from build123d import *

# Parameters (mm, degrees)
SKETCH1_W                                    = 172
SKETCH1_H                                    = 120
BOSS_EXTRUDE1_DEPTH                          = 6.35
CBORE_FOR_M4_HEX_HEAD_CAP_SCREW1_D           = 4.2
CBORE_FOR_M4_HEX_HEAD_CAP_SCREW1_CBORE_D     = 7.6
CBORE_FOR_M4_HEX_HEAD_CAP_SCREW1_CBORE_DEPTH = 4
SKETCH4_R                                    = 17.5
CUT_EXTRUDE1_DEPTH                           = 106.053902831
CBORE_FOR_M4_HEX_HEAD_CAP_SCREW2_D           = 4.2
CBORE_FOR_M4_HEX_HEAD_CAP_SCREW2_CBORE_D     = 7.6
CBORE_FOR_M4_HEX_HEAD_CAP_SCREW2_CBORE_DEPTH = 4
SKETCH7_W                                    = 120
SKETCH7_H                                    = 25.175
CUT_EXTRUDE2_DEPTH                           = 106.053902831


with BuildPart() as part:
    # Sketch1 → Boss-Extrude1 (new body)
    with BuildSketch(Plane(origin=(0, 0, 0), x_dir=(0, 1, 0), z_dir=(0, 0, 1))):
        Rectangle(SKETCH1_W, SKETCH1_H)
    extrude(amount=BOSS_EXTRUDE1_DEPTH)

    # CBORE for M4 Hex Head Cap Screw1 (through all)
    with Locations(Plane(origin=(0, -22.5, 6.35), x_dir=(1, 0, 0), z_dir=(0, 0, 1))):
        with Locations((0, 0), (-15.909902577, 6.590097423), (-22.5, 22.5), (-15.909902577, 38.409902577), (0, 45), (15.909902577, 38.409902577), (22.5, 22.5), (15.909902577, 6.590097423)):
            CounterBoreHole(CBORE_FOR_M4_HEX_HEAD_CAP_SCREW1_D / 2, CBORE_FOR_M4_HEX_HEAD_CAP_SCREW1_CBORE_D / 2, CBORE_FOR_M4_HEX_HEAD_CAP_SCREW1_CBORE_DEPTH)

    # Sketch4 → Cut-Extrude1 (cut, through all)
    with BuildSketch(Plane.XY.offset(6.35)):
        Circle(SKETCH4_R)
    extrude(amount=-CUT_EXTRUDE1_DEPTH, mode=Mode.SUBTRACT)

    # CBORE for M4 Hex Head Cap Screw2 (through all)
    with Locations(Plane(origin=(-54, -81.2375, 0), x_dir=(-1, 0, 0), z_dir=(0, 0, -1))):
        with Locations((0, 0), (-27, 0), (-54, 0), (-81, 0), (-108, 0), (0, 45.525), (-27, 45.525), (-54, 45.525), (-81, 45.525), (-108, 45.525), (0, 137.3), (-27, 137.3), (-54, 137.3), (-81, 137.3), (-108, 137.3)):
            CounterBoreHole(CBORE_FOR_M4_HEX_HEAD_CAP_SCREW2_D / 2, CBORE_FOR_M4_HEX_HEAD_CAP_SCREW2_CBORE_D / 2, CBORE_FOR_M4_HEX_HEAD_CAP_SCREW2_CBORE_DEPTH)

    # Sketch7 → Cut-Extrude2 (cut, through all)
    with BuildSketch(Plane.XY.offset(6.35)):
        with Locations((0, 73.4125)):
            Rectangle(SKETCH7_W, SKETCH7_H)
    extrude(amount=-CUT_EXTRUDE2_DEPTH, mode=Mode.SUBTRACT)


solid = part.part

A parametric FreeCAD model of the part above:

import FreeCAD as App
import Part
import Sketcher
Q = App.Units.Quantity

doc = App.newDocument("Part")
body = doc.addObject("PartDesign::Body", "Body")

sketch1 = body.newObject("Sketcher::SketchObject", "Sketch")
sketch1.AttachmentSupport = (doc.getObject("XY_Plane"), [""])
sketch1.MapMode = "FlatFace"
sketch1.addGeometry(Part.LineSegment(App.Vector(-60, -86, 0), App.Vector(60, -86, 0)), False)
sketch1.addGeometry(Part.LineSegment(App.Vector(60, -86, 0), App.Vector(60, 86, 0)), False)
sketch1.addGeometry(Part.LineSegment(App.Vector(60, 86, 0), App.Vector(-60, 86, 0)), False)
sketch1.addGeometry(Part.LineSegment(App.Vector(-60, 86, 0), App.Vector(-60, -86, 0)), False)
sketch1.addConstraint(Sketcher.Constraint("Coincident", 0, 2, 1, 1))
sketch1.addConstraint(Sketcher.Constraint("Coincident", 1, 2, 2, 1))
sketch1.addConstraint(Sketcher.Constraint("Coincident", 2, 2, 3, 1))
sketch1.addConstraint(Sketcher.Constraint("Coincident", 3, 2, 0, 1))
sketch1.addConstraint(Sketcher.Constraint("Horizontal", 0))
sketch1.addConstraint(Sketcher.Constraint("Vertical", 1))
sketch1.addConstraint(Sketcher.Constraint("Horizontal", 2))
sketch1.addConstraint(Sketcher.Constraint("Vertical", 3))
sketch1.addConstraint(Sketcher.Constraint("Symmetric", 0, 2, 2, 2, -1, 1))
sketch1.addConstraint(Sketcher.Constraint("DistanceX", 0, 1, 0, 2, Q("120 mm")))
sketch1.addConstraint(Sketcher.Constraint("DistanceY", 1, 1, 1, 2, Q("172 mm")))
pad1 = body.newObject("PartDesign::Pad", "Pad")
pad1.Profile = sketch1
pad1.Length = 6.35

sketch2 = body.newObject("Sketcher::SketchObject", "Sketch001")
sketch2.AttachmentSupport = (doc.getObject("XY_Plane"), [""])
sketch2.MapMode = "FlatFace"
sketch2.AttachmentOffset = App.Placement(App.Vector(0, 0, 6.35), App.Rotation())
sketch2.addGeometry(Part.Circle(App.Vector(0, -22.5, 0), App.Vector(0, 0, 1), 2.1), False)
sketch2.addGeometry(Part.Circle(App.Vector(-15.9, -15.9, 0), App.Vector(0, 0, 1), 2.1), False)
sketch2.addGeometry(Part.Circle(App.Vector(-22.5, 0, 0), App.Vector(0, 0, 1), 2.1), False)
sketch2.addGeometry(Part.Circle(App.Vector(-15.9, 15.9, 0), App.Vector(0, 0, 1), 2.1), False)
sketch2.addGeometry(Part.Circle(App.Vector(0, 22.5, 0), App.Vector(0, 0, 1), 2.1), False)
sketch2.addGeometry(Part.Circle(App.Vector(15.9, 15.9, 0), App.Vector(0, 0, 1), 2.1), False)
sketch2.addGeometry(Part.Circle(App.Vector(22.5, 0, 0), App.Vector(0, 0, 1), 2.1), False)
sketch2.addGeometry(Part.Circle(App.Vector(15.9, -15.9, 0), App.Vector(0, 0, 1), 2.1), False)
sketch2.addConstraint(Sketcher.Constraint("Equal", 0, 1))
sketch2.addConstraint(Sketcher.Constraint("Equal", 1, 2))
sketch2.addConstraint(Sketcher.Constraint("Equal", 2, 3))
sketch2.addConstraint(Sketcher.Constraint("Equal", 3, 4))
sketch2.addConstraint(Sketcher.Constraint("Equal", 4, 5))
sketch2.addConstraint(Sketcher.Constraint("Equal", 5, 6))
sketch2.addConstraint(Sketcher.Constraint("Equal", 6, 7))
sketch2.addConstraint(Sketcher.Constraint("Symmetric", 0, 3, 4, 3, -1, 1))
sketch2.addConstraint(Sketcher.Constraint("Symmetric", 1, 3, 5, 3, -1, 1))
sketch2.addConstraint(Sketcher.Constraint("Symmetric", 2, 3, 6, 3, -1, 1))
sketch2.addConstraint(Sketcher.Constraint("Symmetric", 3, 3, 7, 3, -1, 1))
sketch2.addConstraint(Sketcher.Constraint("Symmetric", 3, 3, 5, 3, -2))
sketch2.addConstraint(Sketcher.Constraint("PointOnObject", 0, 3, -2))
sketch2.addConstraint(Sketcher.Constraint("PointOnObject", 2, 3, -1))
sketch2.addConstraint(Sketcher.Constraint("Diameter", 0, Q("4.2 mm")))
sketch2.addConstraint(Sketcher.Constraint("DistanceY", 0, 3, 4, 3, Q("45 mm")))
sketch2.addConstraint(Sketcher.Constraint("DistanceX", 2, 3, -1, 1, Q("22.5 mm")))
sketch2.addConstraint(Sketcher.Constraint("DistanceX", 1, 3, -1, 1, Q("15.909903 mm")))
sketch2.addConstraint(Sketcher.Constraint("DistanceY", 1, 3, -1, 1, Q("15.909903 mm")))
doc.recompute()
hole = body.newObject("PartDesign::Hole", "Hole")
hole.Profile = sketch2
hole.ThreadType = "None"
hole.Diameter = 4.2
hole.DepthType = "ThroughAll"
hole.HoleCutType = "Counterbore"
hole.HoleCutDiameter = 7.6
hole.HoleCutDepth = 4

sketch3 = body.newObject("Sketcher::SketchObject", "Sketch002")
sketch3.AttachmentSupport = (doc.getObject("XY_Plane"), [""])
sketch3.MapMode = "FlatFace"
sketch3.AttachmentOffset = App.Placement(App.Vector(0, 0, 6.35), App.Rotation())
sketch3.addGeometry(Part.Circle(App.Vector(0, 0, 0), App.Vector(0, 0, 1), 18), False)
sketch3.addConstraint(Sketcher.Constraint("Coincident", 0, 3, -1, 1))
sketch3.addConstraint(Sketcher.Constraint("Diameter", 0, Q("35 mm")))
pocket1 = body.newObject("PartDesign::Pocket", "Pocket")
pocket1.Profile = sketch3
pocket1.Type = "ThroughAll"

sketch4 = body.newObject("Sketcher::SketchObject", "Sketch003")
sketch4.AttachmentSupport = (doc.getObject("XY_Plane"), [""])
sketch4.MapMode = "FlatFace"
sketch4.addGeometry(Part.Circle(App.Vector(-54, -81.2, 0), App.Vector(0, 0, 1), 2.1), False)
sketch4.addGeometry(Part.Circle(App.Vector(-27, -81.2, 0), App.Vector(0, 0, 1), 2.1), False)
sketch4.addGeometry(Part.Circle(App.Vector(0, -81.2, 0), App.Vector(0, 0, 1), 2.1), False)
sketch4.addGeometry(Part.Circle(App.Vector(27, -81.2, 0), App.Vector(0, 0, 1), 2.1), False)
sketch4.addGeometry(Part.Circle(App.Vector(54, -81.2, 0), App.Vector(0, 0, 1), 2.1), False)
sketch4.addGeometry(Part.Circle(App.Vector(-54, -35.7, 0), App.Vector(0, 0, 1), 2.1), False)
sketch4.addGeometry(Part.Circle(App.Vector(-27, -35.7, 0), App.Vector(0, 0, 1), 2.1), False)
sketch4.addGeometry(Part.Circle(App.Vector(0, -35.7, 0), App.Vector(0, 0, 1), 2.1), False)
sketch4.addGeometry(Part.Circle(App.Vector(27, -35.7, 0), App.Vector(0, 0, 1), 2.1), False)
sketch4.addGeometry(Part.Circle(App.Vector(54, -35.7, 0), App.Vector(0, 0, 1), 2.1), False)
sketch4.addGeometry(Part.Circle(App.Vector(-54, 56.1, 0), App.Vector(0, 0, 1), 2.1), False)
sketch4.addGeometry(Part.Circle(App.Vector(-27, 56.1, 0), App.Vector(0, 0, 1), 2.1), False)
sketch4.addGeometry(Part.Circle(App.Vector(0, 56.1, 0), App.Vector(0, 0, 1), 2.1), False)
sketch4.addGeometry(Part.Circle(App.Vector(27, 56.1, 0), App.Vector(0, 0, 1), 2.1), False)
sketch4.addGeometry(Part.Circle(App.Vector(54, 56.1, 0), App.Vector(0, 0, 1), 2.1), False)
sketch4.addConstraint(Sketcher.Constraint("Equal", 0, 1))
sketch4.addConstraint(Sketcher.Constraint("Equal", 1, 2))
sketch4.addConstraint(Sketcher.Constraint("Equal", 2, 3))
sketch4.addConstraint(Sketcher.Constraint("Equal", 3, 4))
sketch4.addConstraint(Sketcher.Constraint("Equal", 4, 5))
sketch4.addConstraint(Sketcher.Constraint("Equal", 5, 6))
sketch4.addConstraint(Sketcher.Constraint("Equal", 6, 7))
sketch4.addConstraint(Sketcher.Constraint("Equal", 7, 8))
sketch4.addConstraint(Sketcher.Constraint("Equal", 8, 9))
sketch4.addConstraint(Sketcher.Constraint("Equal", 9, 10))
sketch4.addConstraint(Sketcher.Constraint("Equal", 10, 11))
sketch4.addConstraint(Sketcher.Constraint("Equal", 11, 12))
sketch4.addConstraint(Sketcher.Constraint("Equal", 12, 13))
sketch4.addConstraint(Sketcher.Constraint("Equal", 13, 14))
sketch4.addConstraint(Sketcher.Constraint("Symmetric", 1, 3, 3, 3, -2))
sketch4.addConstraint(Sketcher.Constraint("Symmetric", 0, 3, 4, 3, -2))
sketch4.addConstraint(Sketcher.Constraint("Symmetric", 6, 3, 8, 3, -2))
sketch4.addConstraint(Sketcher.Constraint("Symmetric", 5, 3, 9, 3, -2))
sketch4.addConstraint(Sketcher.Constraint("Symmetric", 11, 3, 13, 3, -2))
sketch4.addConstraint(Sketcher.Constraint("Symmetric", 10, 3, 14, 3, -2))
sketch4.addConstraint(Sketcher.Constraint("PointOnObject", 2, 3, -2))
sketch4.addConstraint(Sketcher.Constraint("PointOnObject", 7, 3, -2))
sketch4.addConstraint(Sketcher.Constraint("PointOnObject", 12, 3, -2))
sketch4.addConstraint(Sketcher.Constraint("Horizontal", 0, 3, 1, 3))
sketch4.addConstraint(Sketcher.Constraint("Horizontal", 1, 3, 2, 3))
sketch4.addConstraint(Sketcher.Constraint("Horizontal", 5, 3, 6, 3))
sketch4.addConstraint(Sketcher.Constraint("Horizontal", 6, 3, 7, 3))
sketch4.addConstraint(Sketcher.Constraint("Horizontal", 10, 3, 11, 3))
sketch4.addConstraint(Sketcher.Constraint("Horizontal", 11, 3, 12, 3))
sketch4.addConstraint(Sketcher.Constraint("Vertical", 0, 3, 5, 3))
sketch4.addConstraint(Sketcher.Constraint("Vertical", 1, 3, 6, 3))
sketch4.addConstraint(Sketcher.Constraint("Vertical", 5, 3, 10, 3))
sketch4.addConstraint(Sketcher.Constraint("Vertical", 6, 3, 11, 3))
sketch4.addConstraint(Sketcher.Constraint("Diameter", 0, Q("4.2 mm")))
sketch4.addConstraint(Sketcher.Constraint("DistanceX", 0, 3, -1, 1, Q("54 mm")))
sketch4.addConstraint(Sketcher.Constraint("DistanceX", 1, 3, -1, 1, Q("27 mm")))
sketch4.addConstraint(Sketcher.Constraint("DistanceY", 0, 3, 10, 3, Q("137.3 mm")))
sketch4.addConstraint(Sketcher.Constraint("DistanceY", 0, 3, 5, 3, Q("45.525 mm")))
sketch4.addConstraint(Sketcher.Constraint("DistanceY", 0, 3, -1, 1, Q("81.2375 mm")))
doc.recompute()
hole2 = body.newObject("PartDesign::Hole", "Hole001")
hole2.Profile = sketch4
hole2.ThreadType = "None"
hole2.Diameter = 4.2
hole2.DepthType = "ThroughAll"
hole2.HoleCutType = "Counterbore"
hole2.HoleCutDiameter = 7.6
hole2.HoleCutDepth = 4
hole2.Reversed = True

sketch5 = body.newObject("Sketcher::SketchObject", "Sketch004")
sketch5.AttachmentSupport = (doc.getObject("XY_Plane"), [""])
sketch5.MapMode = "FlatFace"
sketch5.AttachmentOffset = App.Placement(App.Vector(0, 0, 6.35), App.Rotation())
sketch5.addGeometry(Part.LineSegment(App.Vector(-60, 86, 0), App.Vector(-60, 61, 0)), False)
sketch5.addGeometry(Part.LineSegment(App.Vector(-60, 61, 0), App.Vector(60, 61, 0)), False)
sketch5.addGeometry(Part.LineSegment(App.Vector(60, 61, 0), App.Vector(60, 86, 0)), False)
sketch5.addGeometry(Part.LineSegment(App.Vector(60, 86, 0), App.Vector(-60, 86, 0)), False)
sketch5.addConstraint(Sketcher.Constraint("Coincident", 0, 2, 1, 1))
sketch5.addConstraint(Sketcher.Constraint("Coincident", 1, 2, 2, 1))
sketch5.addConstraint(Sketcher.Constraint("Coincident", 2, 2, 3, 1))
sketch5.addConstraint(Sketcher.Constraint("Coincident", 3, 2, 0, 1))
sketch5.addConstraint(Sketcher.Constraint("Vertical", 0))
sketch5.addConstraint(Sketcher.Constraint("Horizontal", 1))
sketch5.addConstraint(Sketcher.Constraint("Vertical", 2))
sketch5.addConstraint(Sketcher.Constraint("Horizontal", 3))
sketch5.addConstraint(Sketcher.Constraint("DistanceX", 1, 1, 1, 2, Q("120 mm")))
sketch5.addConstraint(Sketcher.Constraint("DistanceX", 0, 2, -1, 1, Q("60 mm")))
sketch5.addConstraint(Sketcher.Constraint("DistanceY", -1, 1, 2, 2, Q("86 mm")))
sketch5.addConstraint(Sketcher.Constraint("DistanceY", 0, 2, 0, 1, Q("25.175 mm")))
pocket2 = body.newObject("PartDesign::Pocket", "Pocket001")
pocket2.Profile = sketch5
pocket2.Type = "ThroughAll"

doc.recompute()
